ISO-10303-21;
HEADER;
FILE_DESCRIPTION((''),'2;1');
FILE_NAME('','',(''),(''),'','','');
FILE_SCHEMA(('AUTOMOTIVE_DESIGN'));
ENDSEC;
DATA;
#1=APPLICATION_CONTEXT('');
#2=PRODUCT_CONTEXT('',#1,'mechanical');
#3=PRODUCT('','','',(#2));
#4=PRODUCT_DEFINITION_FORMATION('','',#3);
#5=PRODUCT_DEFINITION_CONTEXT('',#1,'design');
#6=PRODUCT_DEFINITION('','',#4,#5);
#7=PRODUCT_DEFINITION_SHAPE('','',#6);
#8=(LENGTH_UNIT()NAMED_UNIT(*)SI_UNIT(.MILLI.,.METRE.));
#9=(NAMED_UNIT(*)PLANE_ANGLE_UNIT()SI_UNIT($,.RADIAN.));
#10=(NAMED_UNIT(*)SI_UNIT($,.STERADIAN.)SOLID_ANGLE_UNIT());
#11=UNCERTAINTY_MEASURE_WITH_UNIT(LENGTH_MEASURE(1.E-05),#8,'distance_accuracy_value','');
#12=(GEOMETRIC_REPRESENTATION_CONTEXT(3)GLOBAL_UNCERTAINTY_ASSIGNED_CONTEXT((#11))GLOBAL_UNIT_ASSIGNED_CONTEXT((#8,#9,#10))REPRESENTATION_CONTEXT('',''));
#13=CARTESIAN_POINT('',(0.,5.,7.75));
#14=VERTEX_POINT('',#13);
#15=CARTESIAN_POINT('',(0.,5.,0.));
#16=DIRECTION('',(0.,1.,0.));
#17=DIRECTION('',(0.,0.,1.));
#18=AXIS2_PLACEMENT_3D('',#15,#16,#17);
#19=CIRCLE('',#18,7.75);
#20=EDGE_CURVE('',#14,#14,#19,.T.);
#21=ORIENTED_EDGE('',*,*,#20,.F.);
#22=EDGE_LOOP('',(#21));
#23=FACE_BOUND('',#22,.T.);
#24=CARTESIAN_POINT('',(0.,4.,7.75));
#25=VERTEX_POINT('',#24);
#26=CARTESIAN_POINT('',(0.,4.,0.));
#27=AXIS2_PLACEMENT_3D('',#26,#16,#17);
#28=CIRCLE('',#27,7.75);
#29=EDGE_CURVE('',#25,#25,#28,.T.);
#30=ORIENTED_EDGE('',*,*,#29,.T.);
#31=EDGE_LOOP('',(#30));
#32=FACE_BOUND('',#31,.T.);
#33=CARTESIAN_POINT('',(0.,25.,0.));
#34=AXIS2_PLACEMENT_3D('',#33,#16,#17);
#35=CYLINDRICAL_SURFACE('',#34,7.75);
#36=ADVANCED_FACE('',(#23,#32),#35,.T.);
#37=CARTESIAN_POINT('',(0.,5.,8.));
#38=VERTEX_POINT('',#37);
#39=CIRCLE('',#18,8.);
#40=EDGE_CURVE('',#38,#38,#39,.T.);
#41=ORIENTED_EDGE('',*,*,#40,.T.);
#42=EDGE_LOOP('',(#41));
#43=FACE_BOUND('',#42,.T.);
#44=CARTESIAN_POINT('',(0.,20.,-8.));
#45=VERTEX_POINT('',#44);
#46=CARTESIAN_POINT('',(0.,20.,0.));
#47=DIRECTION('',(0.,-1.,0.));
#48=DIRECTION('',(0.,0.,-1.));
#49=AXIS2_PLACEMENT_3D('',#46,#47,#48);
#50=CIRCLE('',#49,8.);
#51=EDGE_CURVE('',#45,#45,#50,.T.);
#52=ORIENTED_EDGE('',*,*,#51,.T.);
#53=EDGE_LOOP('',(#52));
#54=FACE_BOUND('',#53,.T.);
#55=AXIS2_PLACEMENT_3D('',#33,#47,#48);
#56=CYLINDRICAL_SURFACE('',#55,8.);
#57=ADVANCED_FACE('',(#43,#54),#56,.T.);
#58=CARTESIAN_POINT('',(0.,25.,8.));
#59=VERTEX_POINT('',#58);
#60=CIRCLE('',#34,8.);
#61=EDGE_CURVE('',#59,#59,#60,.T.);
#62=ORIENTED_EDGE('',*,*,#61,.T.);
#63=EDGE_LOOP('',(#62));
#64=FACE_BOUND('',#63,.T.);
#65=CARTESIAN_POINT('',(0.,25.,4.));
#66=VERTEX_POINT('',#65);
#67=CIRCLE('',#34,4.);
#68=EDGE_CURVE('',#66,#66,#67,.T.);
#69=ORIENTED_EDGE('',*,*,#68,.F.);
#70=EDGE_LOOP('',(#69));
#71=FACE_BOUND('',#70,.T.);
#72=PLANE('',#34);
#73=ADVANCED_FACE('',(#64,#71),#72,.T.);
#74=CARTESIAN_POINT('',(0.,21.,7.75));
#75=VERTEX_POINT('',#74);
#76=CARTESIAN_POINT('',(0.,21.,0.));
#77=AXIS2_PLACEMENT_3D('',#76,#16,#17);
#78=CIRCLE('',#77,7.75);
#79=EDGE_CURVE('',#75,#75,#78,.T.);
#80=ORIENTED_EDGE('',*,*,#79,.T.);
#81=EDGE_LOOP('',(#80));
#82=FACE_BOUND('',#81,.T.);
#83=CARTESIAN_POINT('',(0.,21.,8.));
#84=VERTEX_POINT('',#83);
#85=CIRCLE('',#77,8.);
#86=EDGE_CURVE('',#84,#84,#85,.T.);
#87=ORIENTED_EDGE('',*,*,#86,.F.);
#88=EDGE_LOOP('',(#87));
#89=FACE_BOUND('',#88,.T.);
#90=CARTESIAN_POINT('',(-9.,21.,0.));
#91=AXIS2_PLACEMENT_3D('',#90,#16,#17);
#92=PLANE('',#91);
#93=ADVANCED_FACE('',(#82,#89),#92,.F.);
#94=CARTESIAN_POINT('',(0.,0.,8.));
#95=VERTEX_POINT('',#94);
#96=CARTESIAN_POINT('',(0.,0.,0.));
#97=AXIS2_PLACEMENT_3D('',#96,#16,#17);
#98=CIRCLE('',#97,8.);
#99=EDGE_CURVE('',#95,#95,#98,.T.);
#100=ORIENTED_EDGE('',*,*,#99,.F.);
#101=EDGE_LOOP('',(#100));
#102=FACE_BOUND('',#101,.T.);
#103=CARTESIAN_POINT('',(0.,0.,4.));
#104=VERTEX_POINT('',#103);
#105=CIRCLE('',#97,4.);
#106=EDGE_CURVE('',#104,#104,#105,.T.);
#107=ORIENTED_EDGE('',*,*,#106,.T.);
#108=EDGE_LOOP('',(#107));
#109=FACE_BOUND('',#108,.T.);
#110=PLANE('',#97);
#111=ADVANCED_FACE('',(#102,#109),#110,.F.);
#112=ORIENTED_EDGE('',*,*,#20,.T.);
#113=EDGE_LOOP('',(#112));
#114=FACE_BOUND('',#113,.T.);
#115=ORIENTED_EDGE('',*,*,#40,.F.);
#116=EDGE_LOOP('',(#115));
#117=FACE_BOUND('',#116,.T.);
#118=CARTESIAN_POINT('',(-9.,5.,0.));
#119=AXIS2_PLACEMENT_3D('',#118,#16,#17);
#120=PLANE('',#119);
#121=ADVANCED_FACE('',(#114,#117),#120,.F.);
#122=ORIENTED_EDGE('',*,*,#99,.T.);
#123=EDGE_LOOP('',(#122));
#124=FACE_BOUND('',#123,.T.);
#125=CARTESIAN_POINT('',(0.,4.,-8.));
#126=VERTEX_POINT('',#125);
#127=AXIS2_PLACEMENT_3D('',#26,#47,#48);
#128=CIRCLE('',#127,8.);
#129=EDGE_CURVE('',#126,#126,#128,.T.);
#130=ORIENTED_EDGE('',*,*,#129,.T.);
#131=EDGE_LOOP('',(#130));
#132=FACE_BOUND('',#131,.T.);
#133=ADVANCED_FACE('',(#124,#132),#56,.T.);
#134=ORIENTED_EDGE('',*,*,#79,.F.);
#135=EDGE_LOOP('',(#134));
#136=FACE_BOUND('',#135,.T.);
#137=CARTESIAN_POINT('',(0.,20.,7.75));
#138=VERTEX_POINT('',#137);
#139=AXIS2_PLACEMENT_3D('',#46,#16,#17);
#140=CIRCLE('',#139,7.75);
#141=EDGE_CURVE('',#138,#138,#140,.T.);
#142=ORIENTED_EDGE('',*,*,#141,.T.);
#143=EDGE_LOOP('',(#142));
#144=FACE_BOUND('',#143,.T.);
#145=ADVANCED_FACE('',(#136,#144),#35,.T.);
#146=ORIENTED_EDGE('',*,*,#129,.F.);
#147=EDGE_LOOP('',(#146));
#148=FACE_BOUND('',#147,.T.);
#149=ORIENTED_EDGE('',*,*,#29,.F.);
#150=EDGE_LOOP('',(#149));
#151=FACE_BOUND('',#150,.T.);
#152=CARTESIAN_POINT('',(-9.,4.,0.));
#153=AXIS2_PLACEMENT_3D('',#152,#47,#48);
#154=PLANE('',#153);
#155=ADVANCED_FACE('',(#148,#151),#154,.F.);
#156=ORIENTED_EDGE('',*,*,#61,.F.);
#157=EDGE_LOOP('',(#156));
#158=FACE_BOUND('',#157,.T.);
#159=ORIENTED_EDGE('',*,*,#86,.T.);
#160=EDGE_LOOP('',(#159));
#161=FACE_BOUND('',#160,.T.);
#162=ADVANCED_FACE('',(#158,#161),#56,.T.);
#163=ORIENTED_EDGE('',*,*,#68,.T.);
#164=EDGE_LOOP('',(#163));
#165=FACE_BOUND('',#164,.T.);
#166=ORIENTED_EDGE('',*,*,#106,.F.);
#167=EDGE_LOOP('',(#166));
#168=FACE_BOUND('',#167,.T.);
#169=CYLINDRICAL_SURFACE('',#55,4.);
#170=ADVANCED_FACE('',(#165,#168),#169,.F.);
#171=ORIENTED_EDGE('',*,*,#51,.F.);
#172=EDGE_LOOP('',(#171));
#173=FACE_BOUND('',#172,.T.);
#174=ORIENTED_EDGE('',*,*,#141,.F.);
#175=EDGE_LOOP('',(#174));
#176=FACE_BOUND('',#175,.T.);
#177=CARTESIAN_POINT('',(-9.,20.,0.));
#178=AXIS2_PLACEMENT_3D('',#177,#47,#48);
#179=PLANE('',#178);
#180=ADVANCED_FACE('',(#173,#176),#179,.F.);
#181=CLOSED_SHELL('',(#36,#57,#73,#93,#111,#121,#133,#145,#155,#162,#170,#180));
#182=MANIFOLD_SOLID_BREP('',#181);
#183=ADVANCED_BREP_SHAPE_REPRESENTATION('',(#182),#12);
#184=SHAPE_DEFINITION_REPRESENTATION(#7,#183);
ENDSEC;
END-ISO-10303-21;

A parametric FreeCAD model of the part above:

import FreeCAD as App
import Part
import Sketcher


def add_polygon(sketch, points):
    """Adds a closed chain of lines whose ends are joined by coincident constraints."""
    first, n = sketch.GeometryCount, len(points)
    for a, b in zip(points, points[1:] + points[:1]):
        sketch.addGeometry(Part.LineSegment(App.Vector(*a, 0), App.Vector(*b, 0)), False)
    for i in range(n):
        sketch.addConstraint(Sketcher.Constraint("Coincident", first + i, 2, first + (i + 1) % n, 1))

doc = App.newDocument("Part")
body = doc.addObject("PartDesign::Body", "Body")

# Sketch on XZ plane
sketch1 = body.newObject("Sketcher::SketchObject", "Sketch")
sketch1.AttachmentSupport = (doc.getObject("XZ_Plane"), [""])
sketch1.MapMode = "FlatFace"
sketch1.addGeometry(Part.Circle(App.Vector(0, 0, 0), App.Vector(0, 0, 1), 8), False)
sketch1.addGeometry(Part.Circle(App.Vector(0, 0, 0), App.Vector(0, 0, 1), 4), False)
sketch1.addConstraint(Sketcher.Constraint("Coincident", 0, 3, -1, 1))
sketch1.addConstraint(Sketcher.Constraint("Coincident", 1, 3, -1, 1))
sketch1.addConstraint(Sketcher.Constraint("Diameter", 0, 16.0))
sketch1.addConstraint(Sketcher.Constraint("Diameter", 1, 8.0))
pad1 = body.newObject("PartDesign::Pad", "Pad")
pad1.Profile = sketch1
pad1.Length = 25
pad1.Reversed = True

# Sketch on XY plane
sketch2 = body.newObject("Sketcher::SketchObject", "Sketch001")
sketch2.AttachmentSupport = (doc.getObject("XY_Plane"), [""])
sketch2.MapMode = "FlatFace"
add_polygon(sketch2, [(-9, 21), (-9, 20), (-7.75, 20), (-7.75, 21)])  # lines 0-3
add_polygon(sketch2, [(-9, 5), (-9, 4), (-7.75, 4), (-7.75, 5)])  # lines 4-7
sketch2.addConstraint(Sketcher.Constraint("Vertical", 0))
sketch2.addConstraint(Sketcher.Constraint("Horizontal", 1))
sketch2.addConstraint(Sketcher.Constraint("Vertical", 2))
sketch2.addConstraint(Sketcher.Constraint("Horizontal", 3))
sketch2.addConstraint(Sketcher.Constraint("Vertical", 4))
sketch2.addConstraint(Sketcher.Constraint("Horizontal", 5))
sketch2.addConstraint(Sketcher.Constraint("Vertical", 6))
sketch2.addConstraint(Sketcher.Constraint("Horizontal", 7))
sketch2.addConstraint(Sketcher.Constraint("Vertical", 3, 2, 4, 2))
sketch2.addConstraint(Sketcher.Constraint("Vertical", 2, 2, 5, 2))
sketch2.addConstraint(Sketcher.Constraint("Equal", 2, 4))
sketch2.addConstraint(Sketcher.Constraint("DistanceY", 0, 2, 0, 1, 1.0))
sketch2.addConstraint(Sketcher.Constraint("DistanceX", 0, 2, -1, 1, 9.0))
sketch2.addConstraint(Sketcher.Constraint("DistanceY", -1, 1, 0, 2, 20.0))
sketch2.addConstraint(Sketcher.Constraint("DistanceY", -1, 1, 4, 2, 4.0))
sketch2.addConstraint(Sketcher.Constraint("DistanceX", 1, 1, 1, 2, 1.25))
groove = body.newObject("PartDesign::Groove", "Groove")
groove.Profile = sketch2
groove.ReferenceAxis = (sketch2, ["V_Axis"])
groove.Angle = 360

doc.recompute()
